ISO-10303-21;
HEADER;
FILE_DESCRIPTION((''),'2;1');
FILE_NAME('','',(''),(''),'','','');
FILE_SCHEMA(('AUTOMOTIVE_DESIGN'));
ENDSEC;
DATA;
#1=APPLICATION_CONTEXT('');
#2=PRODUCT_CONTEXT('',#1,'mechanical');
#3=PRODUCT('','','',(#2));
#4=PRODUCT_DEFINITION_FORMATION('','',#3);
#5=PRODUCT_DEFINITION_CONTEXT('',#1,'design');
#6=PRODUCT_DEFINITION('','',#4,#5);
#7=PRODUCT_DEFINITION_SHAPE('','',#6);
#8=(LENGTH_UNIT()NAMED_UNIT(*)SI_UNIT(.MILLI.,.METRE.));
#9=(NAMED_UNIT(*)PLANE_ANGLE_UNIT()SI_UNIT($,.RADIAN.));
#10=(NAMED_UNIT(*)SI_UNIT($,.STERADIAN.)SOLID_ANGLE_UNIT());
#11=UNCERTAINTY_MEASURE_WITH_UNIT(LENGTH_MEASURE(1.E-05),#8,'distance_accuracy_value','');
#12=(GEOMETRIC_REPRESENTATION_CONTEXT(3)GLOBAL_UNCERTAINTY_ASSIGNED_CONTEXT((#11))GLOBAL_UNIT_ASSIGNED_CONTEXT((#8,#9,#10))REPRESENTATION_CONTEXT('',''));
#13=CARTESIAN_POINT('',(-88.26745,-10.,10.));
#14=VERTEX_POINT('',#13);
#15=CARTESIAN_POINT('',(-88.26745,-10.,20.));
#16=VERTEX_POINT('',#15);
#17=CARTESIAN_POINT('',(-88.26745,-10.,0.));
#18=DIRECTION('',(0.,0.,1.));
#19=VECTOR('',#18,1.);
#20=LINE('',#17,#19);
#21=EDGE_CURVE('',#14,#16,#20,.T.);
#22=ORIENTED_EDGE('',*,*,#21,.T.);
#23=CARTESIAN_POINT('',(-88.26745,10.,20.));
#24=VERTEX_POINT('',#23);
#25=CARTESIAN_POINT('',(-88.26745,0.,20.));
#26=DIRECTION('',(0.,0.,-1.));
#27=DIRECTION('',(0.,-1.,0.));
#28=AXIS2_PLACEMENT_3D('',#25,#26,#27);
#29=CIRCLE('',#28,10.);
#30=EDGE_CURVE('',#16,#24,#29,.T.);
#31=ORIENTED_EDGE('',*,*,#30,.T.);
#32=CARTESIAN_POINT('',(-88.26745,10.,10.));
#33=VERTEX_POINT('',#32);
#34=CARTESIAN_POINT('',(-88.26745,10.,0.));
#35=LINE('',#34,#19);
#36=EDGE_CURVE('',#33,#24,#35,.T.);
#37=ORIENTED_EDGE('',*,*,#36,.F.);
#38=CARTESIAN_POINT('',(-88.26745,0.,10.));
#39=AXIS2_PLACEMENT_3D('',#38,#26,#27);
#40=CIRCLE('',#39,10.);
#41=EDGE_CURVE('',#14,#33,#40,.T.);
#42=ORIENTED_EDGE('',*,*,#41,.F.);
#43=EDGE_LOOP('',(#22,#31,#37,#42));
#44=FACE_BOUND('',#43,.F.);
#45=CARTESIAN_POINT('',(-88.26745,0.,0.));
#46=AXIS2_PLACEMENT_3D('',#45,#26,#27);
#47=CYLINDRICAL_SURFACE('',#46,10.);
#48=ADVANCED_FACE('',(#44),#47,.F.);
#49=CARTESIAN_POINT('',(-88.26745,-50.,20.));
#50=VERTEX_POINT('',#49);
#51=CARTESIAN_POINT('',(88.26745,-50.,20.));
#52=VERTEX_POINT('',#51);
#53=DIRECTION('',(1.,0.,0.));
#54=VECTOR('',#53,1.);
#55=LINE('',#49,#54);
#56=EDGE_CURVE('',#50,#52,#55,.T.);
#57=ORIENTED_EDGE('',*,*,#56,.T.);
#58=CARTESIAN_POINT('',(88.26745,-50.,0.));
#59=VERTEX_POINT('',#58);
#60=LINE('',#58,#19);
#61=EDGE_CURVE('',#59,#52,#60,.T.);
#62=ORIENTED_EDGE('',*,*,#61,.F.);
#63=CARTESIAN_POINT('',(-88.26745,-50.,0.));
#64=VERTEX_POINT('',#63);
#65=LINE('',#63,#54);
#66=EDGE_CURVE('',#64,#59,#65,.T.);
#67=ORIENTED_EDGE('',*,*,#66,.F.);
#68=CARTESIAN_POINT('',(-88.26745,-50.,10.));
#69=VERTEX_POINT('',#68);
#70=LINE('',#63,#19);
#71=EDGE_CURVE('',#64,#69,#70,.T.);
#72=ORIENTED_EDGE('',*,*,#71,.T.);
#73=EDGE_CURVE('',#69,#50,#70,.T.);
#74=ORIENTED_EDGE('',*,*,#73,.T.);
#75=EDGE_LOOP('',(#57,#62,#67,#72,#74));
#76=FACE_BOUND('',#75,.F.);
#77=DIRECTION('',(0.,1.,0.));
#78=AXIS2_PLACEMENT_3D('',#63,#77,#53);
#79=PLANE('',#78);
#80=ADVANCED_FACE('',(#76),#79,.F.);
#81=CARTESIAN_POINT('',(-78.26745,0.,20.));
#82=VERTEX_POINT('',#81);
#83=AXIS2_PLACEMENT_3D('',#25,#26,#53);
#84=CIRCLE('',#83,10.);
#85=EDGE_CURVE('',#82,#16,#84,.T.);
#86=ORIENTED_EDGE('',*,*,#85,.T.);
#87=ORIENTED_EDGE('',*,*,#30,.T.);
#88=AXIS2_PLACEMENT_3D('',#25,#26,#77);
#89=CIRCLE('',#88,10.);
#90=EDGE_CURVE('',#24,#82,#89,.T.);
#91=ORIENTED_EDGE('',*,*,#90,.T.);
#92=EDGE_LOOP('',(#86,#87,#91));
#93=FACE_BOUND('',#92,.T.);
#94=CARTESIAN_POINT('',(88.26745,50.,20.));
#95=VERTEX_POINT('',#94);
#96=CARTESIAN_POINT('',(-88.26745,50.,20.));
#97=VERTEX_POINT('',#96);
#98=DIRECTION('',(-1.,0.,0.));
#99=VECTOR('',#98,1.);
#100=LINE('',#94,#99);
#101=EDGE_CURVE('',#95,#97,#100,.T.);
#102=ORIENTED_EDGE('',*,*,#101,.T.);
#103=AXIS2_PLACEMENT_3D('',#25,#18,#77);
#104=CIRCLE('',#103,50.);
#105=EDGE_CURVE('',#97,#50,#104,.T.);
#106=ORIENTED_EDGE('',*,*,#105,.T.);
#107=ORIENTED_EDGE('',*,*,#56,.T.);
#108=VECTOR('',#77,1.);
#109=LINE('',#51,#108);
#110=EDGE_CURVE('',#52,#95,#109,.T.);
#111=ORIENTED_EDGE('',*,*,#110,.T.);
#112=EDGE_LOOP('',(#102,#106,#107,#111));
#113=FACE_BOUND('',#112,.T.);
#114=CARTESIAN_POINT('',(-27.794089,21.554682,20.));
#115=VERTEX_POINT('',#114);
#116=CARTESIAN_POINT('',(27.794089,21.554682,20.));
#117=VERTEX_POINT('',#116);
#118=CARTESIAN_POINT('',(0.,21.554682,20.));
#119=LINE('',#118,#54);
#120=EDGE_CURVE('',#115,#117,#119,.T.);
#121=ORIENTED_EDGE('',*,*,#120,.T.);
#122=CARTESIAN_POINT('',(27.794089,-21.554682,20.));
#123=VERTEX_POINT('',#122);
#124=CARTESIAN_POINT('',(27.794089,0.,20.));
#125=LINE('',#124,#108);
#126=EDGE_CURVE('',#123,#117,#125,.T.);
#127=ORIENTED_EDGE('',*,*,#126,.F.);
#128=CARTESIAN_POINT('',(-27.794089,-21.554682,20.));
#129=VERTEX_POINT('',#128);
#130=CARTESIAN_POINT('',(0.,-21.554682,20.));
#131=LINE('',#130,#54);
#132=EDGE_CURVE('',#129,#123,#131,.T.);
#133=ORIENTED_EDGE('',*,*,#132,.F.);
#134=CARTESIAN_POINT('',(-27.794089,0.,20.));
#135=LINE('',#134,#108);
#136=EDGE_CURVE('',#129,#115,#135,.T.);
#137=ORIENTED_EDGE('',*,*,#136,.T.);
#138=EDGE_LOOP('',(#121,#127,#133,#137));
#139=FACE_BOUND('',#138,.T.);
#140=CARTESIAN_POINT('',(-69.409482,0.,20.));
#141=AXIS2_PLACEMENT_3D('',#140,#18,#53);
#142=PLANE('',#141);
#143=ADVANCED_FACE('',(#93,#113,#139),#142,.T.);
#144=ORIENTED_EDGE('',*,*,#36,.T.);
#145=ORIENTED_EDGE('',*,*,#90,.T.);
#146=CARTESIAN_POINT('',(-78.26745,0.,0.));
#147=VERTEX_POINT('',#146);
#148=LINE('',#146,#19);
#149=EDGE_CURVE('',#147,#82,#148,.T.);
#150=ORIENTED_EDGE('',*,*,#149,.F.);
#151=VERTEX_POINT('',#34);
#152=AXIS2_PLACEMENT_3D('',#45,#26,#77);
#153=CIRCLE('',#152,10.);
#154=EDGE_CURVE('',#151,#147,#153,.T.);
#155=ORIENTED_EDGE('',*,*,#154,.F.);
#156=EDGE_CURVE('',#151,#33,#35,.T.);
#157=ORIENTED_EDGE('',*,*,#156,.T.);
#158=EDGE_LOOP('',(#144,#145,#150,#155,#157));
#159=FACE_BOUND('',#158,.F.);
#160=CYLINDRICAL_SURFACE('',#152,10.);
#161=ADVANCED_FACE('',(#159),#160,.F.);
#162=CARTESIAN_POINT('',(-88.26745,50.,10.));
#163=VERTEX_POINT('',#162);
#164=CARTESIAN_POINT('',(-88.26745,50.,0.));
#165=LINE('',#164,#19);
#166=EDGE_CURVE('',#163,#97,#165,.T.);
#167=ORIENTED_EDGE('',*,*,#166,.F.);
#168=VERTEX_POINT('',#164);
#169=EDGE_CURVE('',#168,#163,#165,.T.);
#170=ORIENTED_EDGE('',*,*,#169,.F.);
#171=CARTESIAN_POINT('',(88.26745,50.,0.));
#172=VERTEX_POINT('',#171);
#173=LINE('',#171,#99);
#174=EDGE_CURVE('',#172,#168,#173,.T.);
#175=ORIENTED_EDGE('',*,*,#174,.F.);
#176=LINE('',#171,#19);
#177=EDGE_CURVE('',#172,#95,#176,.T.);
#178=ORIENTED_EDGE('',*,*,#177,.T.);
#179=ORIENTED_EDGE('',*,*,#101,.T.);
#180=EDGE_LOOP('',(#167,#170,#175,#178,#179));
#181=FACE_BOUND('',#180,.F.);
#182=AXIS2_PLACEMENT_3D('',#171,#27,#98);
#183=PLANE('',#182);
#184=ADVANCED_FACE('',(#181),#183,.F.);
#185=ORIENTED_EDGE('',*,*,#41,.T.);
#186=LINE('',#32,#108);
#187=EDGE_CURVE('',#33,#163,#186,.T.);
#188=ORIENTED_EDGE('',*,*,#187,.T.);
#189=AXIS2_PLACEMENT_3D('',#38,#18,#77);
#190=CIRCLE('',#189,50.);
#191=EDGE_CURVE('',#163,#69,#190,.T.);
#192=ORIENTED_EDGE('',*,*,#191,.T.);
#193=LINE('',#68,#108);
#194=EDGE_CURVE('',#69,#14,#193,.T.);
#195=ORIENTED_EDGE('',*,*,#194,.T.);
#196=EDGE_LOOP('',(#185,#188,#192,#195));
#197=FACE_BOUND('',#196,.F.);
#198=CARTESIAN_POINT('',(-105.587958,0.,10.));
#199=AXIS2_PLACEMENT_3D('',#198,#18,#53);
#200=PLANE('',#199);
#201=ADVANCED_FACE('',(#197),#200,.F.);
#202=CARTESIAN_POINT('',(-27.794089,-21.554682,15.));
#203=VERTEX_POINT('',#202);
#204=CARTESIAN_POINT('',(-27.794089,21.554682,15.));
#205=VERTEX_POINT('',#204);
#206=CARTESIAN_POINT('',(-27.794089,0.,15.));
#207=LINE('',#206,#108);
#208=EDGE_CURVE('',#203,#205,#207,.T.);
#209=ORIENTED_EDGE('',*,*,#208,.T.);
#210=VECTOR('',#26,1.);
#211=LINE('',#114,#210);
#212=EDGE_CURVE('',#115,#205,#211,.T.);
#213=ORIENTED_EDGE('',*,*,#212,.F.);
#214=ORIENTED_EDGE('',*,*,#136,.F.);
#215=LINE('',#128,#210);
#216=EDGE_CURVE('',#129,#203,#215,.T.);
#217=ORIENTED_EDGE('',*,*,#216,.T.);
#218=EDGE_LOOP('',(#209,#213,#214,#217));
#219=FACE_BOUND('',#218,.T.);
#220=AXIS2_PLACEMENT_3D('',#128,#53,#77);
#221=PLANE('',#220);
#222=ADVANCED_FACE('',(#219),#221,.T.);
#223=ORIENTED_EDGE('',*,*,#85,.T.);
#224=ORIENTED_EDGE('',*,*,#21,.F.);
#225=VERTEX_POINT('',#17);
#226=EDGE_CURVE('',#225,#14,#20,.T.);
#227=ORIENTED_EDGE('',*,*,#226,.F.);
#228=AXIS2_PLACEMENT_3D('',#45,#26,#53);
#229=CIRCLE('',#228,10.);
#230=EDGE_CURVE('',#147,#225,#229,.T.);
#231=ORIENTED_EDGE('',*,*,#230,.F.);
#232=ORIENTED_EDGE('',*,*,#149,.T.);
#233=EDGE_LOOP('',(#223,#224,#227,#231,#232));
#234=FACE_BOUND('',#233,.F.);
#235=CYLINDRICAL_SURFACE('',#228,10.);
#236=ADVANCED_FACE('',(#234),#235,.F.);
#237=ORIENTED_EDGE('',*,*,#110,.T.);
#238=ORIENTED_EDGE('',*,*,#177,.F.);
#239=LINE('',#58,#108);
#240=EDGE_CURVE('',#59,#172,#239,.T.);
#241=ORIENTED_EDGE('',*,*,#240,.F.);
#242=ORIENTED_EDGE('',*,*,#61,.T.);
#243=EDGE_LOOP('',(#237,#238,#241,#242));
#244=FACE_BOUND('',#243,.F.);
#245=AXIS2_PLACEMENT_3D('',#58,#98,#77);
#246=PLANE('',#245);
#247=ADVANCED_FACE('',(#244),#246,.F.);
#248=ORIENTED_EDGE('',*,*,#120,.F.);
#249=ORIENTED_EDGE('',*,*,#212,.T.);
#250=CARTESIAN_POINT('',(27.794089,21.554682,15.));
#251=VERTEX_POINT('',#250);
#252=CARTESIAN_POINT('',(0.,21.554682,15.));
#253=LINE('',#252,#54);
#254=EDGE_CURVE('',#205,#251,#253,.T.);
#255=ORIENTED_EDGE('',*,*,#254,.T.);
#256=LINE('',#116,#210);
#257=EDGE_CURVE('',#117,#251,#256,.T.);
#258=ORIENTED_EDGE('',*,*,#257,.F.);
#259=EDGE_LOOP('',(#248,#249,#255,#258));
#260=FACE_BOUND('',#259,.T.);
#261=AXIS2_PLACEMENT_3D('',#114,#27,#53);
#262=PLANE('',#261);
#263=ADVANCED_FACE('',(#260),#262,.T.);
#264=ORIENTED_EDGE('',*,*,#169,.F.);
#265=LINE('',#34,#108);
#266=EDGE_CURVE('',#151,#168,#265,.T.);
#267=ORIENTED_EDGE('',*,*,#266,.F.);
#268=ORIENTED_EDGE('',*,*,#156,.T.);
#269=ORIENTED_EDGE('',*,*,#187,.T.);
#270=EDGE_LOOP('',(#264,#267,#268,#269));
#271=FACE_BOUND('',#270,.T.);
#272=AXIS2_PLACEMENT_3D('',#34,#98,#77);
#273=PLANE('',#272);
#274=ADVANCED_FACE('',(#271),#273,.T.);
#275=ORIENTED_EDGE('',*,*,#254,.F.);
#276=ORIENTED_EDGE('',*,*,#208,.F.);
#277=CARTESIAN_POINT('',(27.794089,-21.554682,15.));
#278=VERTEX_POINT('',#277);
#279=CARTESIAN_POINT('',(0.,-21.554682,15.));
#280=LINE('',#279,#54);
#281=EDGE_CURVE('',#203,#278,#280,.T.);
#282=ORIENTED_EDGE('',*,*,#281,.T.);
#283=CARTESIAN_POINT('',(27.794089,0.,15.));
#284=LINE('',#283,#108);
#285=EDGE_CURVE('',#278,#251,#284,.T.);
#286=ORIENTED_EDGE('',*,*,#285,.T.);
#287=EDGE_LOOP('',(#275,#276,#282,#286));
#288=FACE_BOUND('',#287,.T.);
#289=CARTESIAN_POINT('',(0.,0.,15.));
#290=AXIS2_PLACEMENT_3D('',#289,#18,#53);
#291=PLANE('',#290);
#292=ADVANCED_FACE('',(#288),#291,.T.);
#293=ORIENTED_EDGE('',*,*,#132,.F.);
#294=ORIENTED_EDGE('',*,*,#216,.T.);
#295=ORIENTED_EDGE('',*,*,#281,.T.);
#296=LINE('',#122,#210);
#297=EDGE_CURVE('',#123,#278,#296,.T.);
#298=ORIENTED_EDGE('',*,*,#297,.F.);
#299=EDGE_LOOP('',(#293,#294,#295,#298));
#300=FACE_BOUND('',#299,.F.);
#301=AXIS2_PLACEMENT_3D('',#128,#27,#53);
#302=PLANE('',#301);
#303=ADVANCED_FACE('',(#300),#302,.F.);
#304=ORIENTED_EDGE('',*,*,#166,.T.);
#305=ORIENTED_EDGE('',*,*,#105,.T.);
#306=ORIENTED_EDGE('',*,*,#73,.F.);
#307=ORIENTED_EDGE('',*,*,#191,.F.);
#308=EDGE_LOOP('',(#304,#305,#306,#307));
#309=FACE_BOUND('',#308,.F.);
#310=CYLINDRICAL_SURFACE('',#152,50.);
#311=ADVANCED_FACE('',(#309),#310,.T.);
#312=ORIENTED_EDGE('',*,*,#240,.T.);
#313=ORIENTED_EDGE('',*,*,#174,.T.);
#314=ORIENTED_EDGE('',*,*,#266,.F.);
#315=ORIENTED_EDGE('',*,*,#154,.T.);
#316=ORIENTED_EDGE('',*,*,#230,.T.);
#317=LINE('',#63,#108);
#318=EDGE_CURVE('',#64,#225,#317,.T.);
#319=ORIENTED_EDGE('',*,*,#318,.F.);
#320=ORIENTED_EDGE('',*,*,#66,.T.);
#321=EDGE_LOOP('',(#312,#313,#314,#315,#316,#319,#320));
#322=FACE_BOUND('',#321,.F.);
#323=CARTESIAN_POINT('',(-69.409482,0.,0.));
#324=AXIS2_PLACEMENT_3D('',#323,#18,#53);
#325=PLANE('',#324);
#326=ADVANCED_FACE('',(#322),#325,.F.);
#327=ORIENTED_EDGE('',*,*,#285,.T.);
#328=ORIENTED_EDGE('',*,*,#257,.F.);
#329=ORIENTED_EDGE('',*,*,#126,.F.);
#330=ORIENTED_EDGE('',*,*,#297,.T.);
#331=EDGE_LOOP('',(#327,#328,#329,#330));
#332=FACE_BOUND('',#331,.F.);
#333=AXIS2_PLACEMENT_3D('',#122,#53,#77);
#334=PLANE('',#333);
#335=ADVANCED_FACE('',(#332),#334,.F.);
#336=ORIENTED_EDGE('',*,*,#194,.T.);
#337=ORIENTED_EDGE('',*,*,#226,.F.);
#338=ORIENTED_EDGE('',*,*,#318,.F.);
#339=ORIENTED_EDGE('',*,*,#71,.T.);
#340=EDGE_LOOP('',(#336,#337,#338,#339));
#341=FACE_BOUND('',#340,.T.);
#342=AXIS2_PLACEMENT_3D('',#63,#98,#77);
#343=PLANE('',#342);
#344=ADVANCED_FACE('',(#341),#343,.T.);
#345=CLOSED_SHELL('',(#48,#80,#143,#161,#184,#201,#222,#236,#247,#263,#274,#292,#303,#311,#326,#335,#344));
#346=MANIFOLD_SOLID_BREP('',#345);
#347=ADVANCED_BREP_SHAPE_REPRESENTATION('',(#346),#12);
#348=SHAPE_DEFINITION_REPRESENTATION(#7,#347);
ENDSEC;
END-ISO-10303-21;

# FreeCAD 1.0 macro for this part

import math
import FreeCAD as App
import Part
import Sketcher

doc = App.newDocument("Part")
body = doc.addObject("PartDesign::Body", "Body")

# Sketch on XY plane
sketch1 = body.newObject("Sketcher::SketchObject", "Sketch")
sketch1.AttachmentSupport = (doc.getObject("XY_Plane"), [""])
sketch1.MapMode = "FlatFace"
sketch1.addGeometry([
    Part.LineSegment(App.Vector(-88, -50, 0), App.Vector(88, -50, 0)),  # 0
    Part.LineSegment(App.Vector(88, -50, 0), App.Vector(88, 50, 0)),  # 1
    Part.LineSegment(App.Vector(88, 50, 0), App.Vector(-88, 50, 0)),  # 2
    Part.ArcOfCircle(Part.Circle(App.Vector(-88, 0, 0), App.Vector(0, 0, 1), 50), math.radians(90), math.radians(270)),  # 3
    Part.ArcOfCircle(Part.Circle(App.Vector(-88, 0, 0), App.Vector(0, 0, 1), 10), math.radians(0), math.radians(90)),  # 4
    Part.ArcOfCircle(Part.Circle(App.Vector(-88, 0, 0), App.Vector(0, 0, 1), 10), math.radians(-90), math.radians(0)),  # 5
    Part.ArcOfCircle(Part.Circle(App.Vector(-88, 0, 0), App.Vector(0, 0, 1), 10), math.radians(90), math.radians(270)),  # 6
], False)
sketch1.addConstraint([
    Sketcher.Constraint("Coincident", 0, 2, 1, 1),
    Sketcher.Constraint("Coincident", 1, 2, 2, 1),
    Sketcher.Constraint("Tangent", 2, 2, 3, 1),
    Sketcher.Constraint("Tangent", 3, 2, 0, 1),
    Sketcher.Constraint("Tangent", 4, 1, 5, 2),
    Sketcher.Constraint("Tangent", 5, 1, 6, 2),
    Sketcher.Constraint("Tangent", 6, 1, 4, 2),
    Sketcher.Constraint("Horizontal", 0),
    Sketcher.Constraint("Vertical", 1),
    Sketcher.Constraint("Horizontal", 2),
    Sketcher.Constraint("Coincident", 4, 3, 3, 3),
    Sketcher.Constraint("Symmetric", 0, 2, 2, 2, -1, 1),
    Sketcher.Constraint("PointOnObject", 4, 1, -1),
    Sketcher.Constraint("Vertical", 3, 2, 5, 1),
    Sketcher.Constraint("Vertical", 5, 1, 6, 1),
    Sketcher.Constraint("Radius", 3, 50.0),
    Sketcher.Constraint("Radius", 4, 10.0),
    Sketcher.Constraint("DistanceX", 0, 1, 0, 2, 176.5349),
])
pad1 = body.newObject("PartDesign::Pad", "Pad")
pad1.Profile = sketch1
pad1.Length = 20

# Sketch on XY plane
sketch2 = body.newObject("Sketcher::SketchObject", "Sketch001")
sketch2.AttachmentSupport = (doc.getObject("XY_Plane"), [""])
sketch2.MapMode = "FlatFace"
sketch2.addGeometry([
    Part.LineSegment(App.Vector(-88, 10, 0), App.Vector(-88, 50, 0)),
    Part.ArcOfCircle(Part.Circle(App.Vector(-88, 0, 0), App.Vector(0, 0, 1), 50), math.radians(90), math.radians(270)),
    Part.LineSegment(App.Vector(-88, -50, 0), App.Vector(-88, -10, 0)),
    Part.ArcOfCircle(Part.Circle(App.Vector(-88, 0, 0), App.Vector(0, 0, 1), 10), math.radians(90), math.radians(270)),
], False)
sketch2.addConstraint([
    Sketcher.Constraint("Coincident", 0, 2, 1, 1),
    Sketcher.Constraint("Coincident", 1, 2, 2, 1),
    Sketcher.Constraint("Coincident", 2, 2, 3, 2),
    Sketcher.Constraint("Coincident", 3, 1, 0, 1),
    Sketcher.Constraint("Vertical", 0),
    Sketcher.Constraint("Vertical", 2),
    Sketcher.Constraint("Coincident", 3, 3, 1, 3),
    Sketcher.Constraint("Symmetric", 0, 2, 1, 2, -1),
    Sketcher.Constraint("Vertical", 3, 3, 0, 2),
    Sketcher.Constraint("Radius", 1, 50.0),
    Sketcher.Constraint("Radius", 3, 10.0),
    Sketcher.Constraint("DistanceX", 1, 3, -1, 1, 88.26745),
])
pocket1 = body.newObject("PartDesign::Pocket", "Pocket")
pocket1.Profile = sketch2
pocket1.Length = 10
pocket1.Reversed = True

# Sketch on XY plane
sketch3 = body.newObject("Sketcher::SketchObject", "Sketch002")
sketch3.AttachmentSupport = (doc.getObject("XY_Plane"), [""])
sketch3.MapMode = "FlatFace"
sketch3.AttachmentOffset = App.Placement(App.Vector(0, 0, 20), App.Rotation())
sketch3.addGeometry([
    Part.LineSegment(App.Vector(-28, 22, 0), App.Vector(-28, -22, 0)),
    Part.LineSegment(App.Vector(-28, -22, 0), App.Vector(28, -22, 0)),
    Part.LineSegment(App.Vector(28, -22, 0), App.Vector(28, 22, 0)),
    Part.LineSegment(App.Vector(28, 22, 0), App.Vector(-28, 22, 0)),
], False)
sketch3.addConstraint([
    Sketcher.Constraint("Coincident", 0, 2, 1, 1),
    Sketcher.Constraint("Coincident", 1, 2, 2, 1),
    Sketcher.Constraint("Coincident", 2, 2, 3, 1),
    Sketcher.Constraint("Coincident", 3, 2, 0, 1),
    Sketcher.Constraint("Vertical", 0),
    Sketcher.Constraint("Horizontal", 1),
    Sketcher.Constraint("Vertical", 2),
    Sketcher.Constraint("Horizontal", 3),
    Sketcher.Constraint("Symmetric", 0, 2, 2, 2, -1, 1),
    Sketcher.Constraint("DistanceX", 1, 1, 1, 2, 55.588178),
    Sketcher.Constraint("DistanceY", 0, 2, 0, 1, 43.109365),
])
pocket2 = body.newObject("PartDesign::Pocket", "Pocket001")
pocket2.Profile = sketch3
pocket2.Length = 5

doc.recompute()
